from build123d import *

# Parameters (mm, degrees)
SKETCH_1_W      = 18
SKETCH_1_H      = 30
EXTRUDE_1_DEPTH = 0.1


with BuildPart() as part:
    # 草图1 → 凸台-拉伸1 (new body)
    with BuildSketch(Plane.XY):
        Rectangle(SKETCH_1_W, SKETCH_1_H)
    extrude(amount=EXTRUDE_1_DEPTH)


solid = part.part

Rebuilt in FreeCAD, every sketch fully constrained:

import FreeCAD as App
import Part
import Sketcher

V = App.Vector

doc = App.newDocument("Part")
body = doc.addObject("PartDesign::Body", "Body")

# Sketch on XY plane
sketch1 = body.newObject("Sketcher::SketchObject", "Sketch")
sketch1.AttachmentSupport = (doc.getObject("XY_Plane"), [""])
sketch1.MapMode = "FlatFace"
sketch1.addGeometry(Part.LineSegment(V(-9, 15, 0), V(-9, -15, 0)), False)
sketch1.addGeometry(Part.LineSegment(V(-9, -15, 0), V(9, -15, 0)), False)
sketch1.addGeometry(Part.LineSegment(V(9, -15, 0), V(9, 15, 0)), False)
sketch1.addGeometry(Part.LineSegment(V(9, 15, 0), V(-9, 15, 0)), False)
sketch1.addConstraint(Sketcher.Constraint("Coincident", 0, 2, 1, 1))
sketch1.addConstraint(Sketcher.Constraint("Coincident", 1, 2, 2, 1))
sketch1.addConstraint(Sketcher.Constraint("Coincident", 2, 2, 3, 1))
sketch1.addConstraint(Sketcher.Constraint("Coincident", 3, 2, 0, 1))
sketch1.addConstraint(Sketcher.Constraint("Vertical", 0))
sketch1.addConstraint(Sketcher.Constraint("Horizontal", 1))
sketch1.addConstraint(Sketcher.Constraint("Vertical", 2))
sketch1.addConstraint(Sketcher.Constraint("Horizontal", 3))
sketch1.addConstraint(Sketcher.Constraint("Symmetric", 0, 2, 2, 2, -1, 1))
sketch1.addConstraint(Sketcher.Constraint("DistanceX", 1, 1, 1, 2, 18.0))
sketch1.addConstraint(Sketcher.Constraint("DistanceY", 0, 2, 0, 1, 30.0))
pad1 = body.newObject("PartDesign::Pad", "Pad")
pad1.Profile = sketch1
pad1.Length = 0.1

doc.recompute()
